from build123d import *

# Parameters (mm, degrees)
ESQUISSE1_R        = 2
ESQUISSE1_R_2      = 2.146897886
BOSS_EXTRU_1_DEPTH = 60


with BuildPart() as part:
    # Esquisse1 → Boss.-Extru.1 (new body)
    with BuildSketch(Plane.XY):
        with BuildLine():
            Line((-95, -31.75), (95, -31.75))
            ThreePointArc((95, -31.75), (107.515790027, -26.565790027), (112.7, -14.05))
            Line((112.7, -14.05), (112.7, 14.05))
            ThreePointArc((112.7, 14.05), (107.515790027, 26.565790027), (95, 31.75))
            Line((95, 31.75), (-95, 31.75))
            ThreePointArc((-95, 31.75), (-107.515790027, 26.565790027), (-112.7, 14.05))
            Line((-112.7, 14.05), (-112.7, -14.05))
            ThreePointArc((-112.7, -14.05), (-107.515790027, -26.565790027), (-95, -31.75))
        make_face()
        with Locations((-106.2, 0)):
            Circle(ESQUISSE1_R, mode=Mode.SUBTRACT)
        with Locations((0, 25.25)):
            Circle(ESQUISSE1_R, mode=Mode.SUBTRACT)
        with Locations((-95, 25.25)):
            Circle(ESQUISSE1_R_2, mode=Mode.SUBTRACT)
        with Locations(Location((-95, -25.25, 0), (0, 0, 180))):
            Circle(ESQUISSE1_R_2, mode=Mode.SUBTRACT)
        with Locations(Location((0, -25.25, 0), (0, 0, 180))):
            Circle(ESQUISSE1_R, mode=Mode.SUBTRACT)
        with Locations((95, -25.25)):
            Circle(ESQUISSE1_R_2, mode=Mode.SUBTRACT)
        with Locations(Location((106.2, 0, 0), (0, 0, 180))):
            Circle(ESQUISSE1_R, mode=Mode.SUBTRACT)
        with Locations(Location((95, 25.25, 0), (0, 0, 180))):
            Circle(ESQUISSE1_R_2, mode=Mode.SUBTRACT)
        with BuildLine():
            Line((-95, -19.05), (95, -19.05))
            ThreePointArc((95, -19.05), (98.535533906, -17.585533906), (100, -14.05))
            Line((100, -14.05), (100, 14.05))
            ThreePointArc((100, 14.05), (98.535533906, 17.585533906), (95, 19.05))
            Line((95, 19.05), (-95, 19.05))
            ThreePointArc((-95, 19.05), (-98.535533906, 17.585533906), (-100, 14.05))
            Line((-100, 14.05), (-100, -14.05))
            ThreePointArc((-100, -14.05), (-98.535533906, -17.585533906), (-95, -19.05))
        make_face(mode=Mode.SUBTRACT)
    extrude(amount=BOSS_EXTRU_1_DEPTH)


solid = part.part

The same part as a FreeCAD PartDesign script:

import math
import FreeCAD as App
import Part
import Sketcher

doc = App.newDocument("Part")
body = doc.addObject("PartDesign::Body", "Body")

# Sketch on XY plane
sketch1 = body.newObject("Sketcher::SketchObject", "Sketch")
sketch1.AttachmentSupport = (doc.getObject("XY_Plane"), [""])
sketch1.MapMode = "FlatFace"
sketch1.addGeometry([
    Part.LineSegment(App.Vector(-95, -31.8, 0), App.Vector(95, -31.8, 0)),  # 0
    Part.ArcOfCircle(Part.Circle(App.Vector(95, -14.1, 0), App.Vector(0, 0, 1), 17.7), math.radians(-90), math.radians(0)),  # 1
    Part.LineSegment(App.Vector(112.7, -14.1, 0), App.Vector(112.7, 14.1, 0)),  # 2
    Part.ArcOfCircle(Part.Circle(App.Vector(95, 14.1, 0), App.Vector(0, 0, 1), 17.7), math.radians(0), math.radians(90)),  # 3
    Part.LineSegment(App.Vector(95, 31.8, 0), App.Vector(-95, 31.8, 0)),  # 4
    Part.ArcOfCircle(Part.Circle(App.Vector(-95, 14.1, 0), App.Vector(0, 0, 1), 17.7), math.radians(90), math.radians(180)),  # 5
    Part.LineSegment(App.Vector(-112.7, 14.1, 0), App.Vector(-112.7, -14.1, 0)),  # 6
    Part.ArcOfCircle(Part.Circle(App.Vector(-95, -14.1, 0), App.Vector(0, 0, 1), 17.7), math.radians(180), math.radians(270)),  # 7
    Part.Circle(App.Vector(-95, -25.2, 0), App.Vector(0, 0, 1), 2.1),  # 8
    Part.Circle(App.Vector(0, -25.2, 0), App.Vector(0, 0, 1), 2),  # 9
    Part.Circle(App.Vector(95, -25.2, 0), App.Vector(0, 0, 1), 2.1),  # 10
    Part.Circle(App.Vector(-106.2, 0, 0), App.Vector(0, 0, 1), 2),  # 11
    Part.LineSegment(App.Vector(95, -19.1, 0), App.Vector(-95, -19.1, 0)),  # 12
    Part.ArcOfCircle(Part.Circle(App.Vector(-95, -14.1, 0), App.Vector(0, 0, 1), 5), math.radians(180), math.radians(270)),  # 13
    Part.LineSegment(App.Vector(-100, -14.1, 0), App.Vector(-100, 14.1, 0)),  # 14
    Part.ArcOfCircle(Part.Circle(App.Vector(-95, 14.1, 0), App.Vector(0, 0, 1), 5), math.radians(90), math.radians(180)),  # 15
    Part.LineSegment(App.Vector(-95, 19.1, 0), App.Vector(95, 19.1, 0)),  # 16
    Part.ArcOfCircle(Part.Circle(App.Vector(95, 14.1, 0), App.Vector(0, 0, 1), 5), math.radians(0), math.radians(90)),  # 17
    Part.LineSegment(App.Vector(100, 14.1, 0), App.Vector(100, -14.1, 0)),  # 18
    Part.ArcOfCircle(Part.Circle(App.Vector(95, -14.1, 0), App.Vector(0, 0, 1), 5), math.radians(-90), math.radians(0)),  # 19
    Part.Circle(App.Vector(-95, 25.2, 0), App.Vector(0, 0, 1), 2.1),  # 20
    Part.Circle(App.Vector(0, 25.2, 0), App.Vector(0, 0, 1), 2),  # 21
    Part.Circle(App.Vector(106.2, 0, 0), App.Vector(0, 0, 1), 2),  # 22
    Part.Circle(App.Vector(95, 25.2, 0), App.Vector(0, 0, 1), 2.1),  # 23
], False)
sketch1.addConstraint([
    Sketcher.Constraint("Tangent", 0, 2, 1, 1),
    Sketcher.Constraint("Tangent", 1, 2, 2, 1),
    Sketcher.Constraint("Tangent", 2, 2, 3, 1),
    Sketcher.Constraint("Tangent", 3, 2, 4, 1),
    Sketcher.Constraint("Tangent", 4, 2, 5, 1),
    Sketcher.Constraint("Tangent", 5, 2, 6, 1),
    Sketcher.Constraint("Tangent", 6, 2, 7, 1),
    Sketcher.Constraint("Tangent", 7, 2, 0, 1),
    Sketcher.Constraint("Tangent", 12, 2, 13, 2),
    Sketcher.Constraint("Tangent", 13, 1, 14, 1),
    Sketcher.Constraint("Tangent", 14, 2, 15, 2),
    Sketcher.Constraint("Tangent", 15, 1, 16, 1),
    Sketcher.Constraint("Tangent", 16, 2, 17, 2),
    Sketcher.Constraint("Tangent", 17, 1, 18, 1),
    Sketcher.Constraint("Tangent", 18, 2, 19, 2),
    Sketcher.Constraint("Tangent", 19, 1, 12, 1),
    Sketcher.Constraint("Horizontal", 0),
    Sketcher.Constraint("Vertical", 2),
    Sketcher.Constraint("Horizontal", 4),
    Sketcher.Constraint("Vertical", 6),
    Sketcher.Constraint("Horizontal", 12),
    Sketcher.Constraint("Vertical", 14),
    Sketcher.Constraint("Horizontal", 16),
    Sketcher.Constraint("Vertical", 18),
    Sketcher.Constraint("Coincident", 13, 3, 7, 3),
    Sketcher.Constraint("Coincident", 15, 3, 5, 3),
    Sketcher.Constraint("Coincident", 17, 3, 3, 3),
    Sketcher.Constraint("Equal", 1, 3),
    Sketcher.Constraint("Equal", 3, 5),
    Sketcher.Constraint("Equal", 5, 7),
    Sketcher.Constraint("Equal", 8, 10),
    Sketcher.Constraint("Equal", 9, 11),
    Sketcher.Constraint("Equal", 17, 19),
    Sketcher.Constraint("Equal", 10, 20),
    Sketcher.Constraint("Equal", 11, 21),
    Sketcher.Constraint("Equal", 21, 22),
    Sketcher.Constraint("Equal", 20, 23),
    Sketcher.Constraint("Symmetric", 1, 3, 5, 3, -1, 1),
    Sketcher.Constraint("Symmetric", 10, 3, 20, 3, -1, 1),
    Sketcher.Constraint("Symmetric", 9, 3, 21, 3, -1, 1),
    Sketcher.Constraint("Symmetric", 11, 3, 22, 3, -1, 1),
    Sketcher.Constraint("Symmetric", 8, 3, 23, 3, -1, 1),
    Sketcher.Constraint("Symmetric", 8, 3, 10, 3, -2),
    Sketcher.Constraint("PointOnObject", 9, 3, -2),
    Sketcher.Constraint("PointOnObject", 11, 3, -1),
    Sketcher.Constraint("Horizontal", 8, 3, 9, 3),
    Sketcher.Constraint("Vertical", 7, 3, 8, 3),
    Sketcher.Constraint("Diameter", 9, 4.0),
    Sketcher.Constraint("Radius", 13, 5.0),
    Sketcher.Constraint("Radius", 1, 17.7),
    Sketcher.Constraint("DistanceX", 0, 1, 0, 2, 190.0),
    Sketcher.Constraint("DistanceY", 2, 1, 2, 2, 28.1),
    Sketcher.Constraint("DistanceX", 11, 3, -1, 1, 106.2),
    Sketcher.Constraint("DistanceY", 8, 3, 7, 3, 11.2),
    Sketcher.Constraint("Diameter", 8, 4.293796),
])
pad1 = body.newObject("PartDesign::Pad", "Pad")
pad1.Profile = sketch1
pad1.Length = 60

doc.recompute()
